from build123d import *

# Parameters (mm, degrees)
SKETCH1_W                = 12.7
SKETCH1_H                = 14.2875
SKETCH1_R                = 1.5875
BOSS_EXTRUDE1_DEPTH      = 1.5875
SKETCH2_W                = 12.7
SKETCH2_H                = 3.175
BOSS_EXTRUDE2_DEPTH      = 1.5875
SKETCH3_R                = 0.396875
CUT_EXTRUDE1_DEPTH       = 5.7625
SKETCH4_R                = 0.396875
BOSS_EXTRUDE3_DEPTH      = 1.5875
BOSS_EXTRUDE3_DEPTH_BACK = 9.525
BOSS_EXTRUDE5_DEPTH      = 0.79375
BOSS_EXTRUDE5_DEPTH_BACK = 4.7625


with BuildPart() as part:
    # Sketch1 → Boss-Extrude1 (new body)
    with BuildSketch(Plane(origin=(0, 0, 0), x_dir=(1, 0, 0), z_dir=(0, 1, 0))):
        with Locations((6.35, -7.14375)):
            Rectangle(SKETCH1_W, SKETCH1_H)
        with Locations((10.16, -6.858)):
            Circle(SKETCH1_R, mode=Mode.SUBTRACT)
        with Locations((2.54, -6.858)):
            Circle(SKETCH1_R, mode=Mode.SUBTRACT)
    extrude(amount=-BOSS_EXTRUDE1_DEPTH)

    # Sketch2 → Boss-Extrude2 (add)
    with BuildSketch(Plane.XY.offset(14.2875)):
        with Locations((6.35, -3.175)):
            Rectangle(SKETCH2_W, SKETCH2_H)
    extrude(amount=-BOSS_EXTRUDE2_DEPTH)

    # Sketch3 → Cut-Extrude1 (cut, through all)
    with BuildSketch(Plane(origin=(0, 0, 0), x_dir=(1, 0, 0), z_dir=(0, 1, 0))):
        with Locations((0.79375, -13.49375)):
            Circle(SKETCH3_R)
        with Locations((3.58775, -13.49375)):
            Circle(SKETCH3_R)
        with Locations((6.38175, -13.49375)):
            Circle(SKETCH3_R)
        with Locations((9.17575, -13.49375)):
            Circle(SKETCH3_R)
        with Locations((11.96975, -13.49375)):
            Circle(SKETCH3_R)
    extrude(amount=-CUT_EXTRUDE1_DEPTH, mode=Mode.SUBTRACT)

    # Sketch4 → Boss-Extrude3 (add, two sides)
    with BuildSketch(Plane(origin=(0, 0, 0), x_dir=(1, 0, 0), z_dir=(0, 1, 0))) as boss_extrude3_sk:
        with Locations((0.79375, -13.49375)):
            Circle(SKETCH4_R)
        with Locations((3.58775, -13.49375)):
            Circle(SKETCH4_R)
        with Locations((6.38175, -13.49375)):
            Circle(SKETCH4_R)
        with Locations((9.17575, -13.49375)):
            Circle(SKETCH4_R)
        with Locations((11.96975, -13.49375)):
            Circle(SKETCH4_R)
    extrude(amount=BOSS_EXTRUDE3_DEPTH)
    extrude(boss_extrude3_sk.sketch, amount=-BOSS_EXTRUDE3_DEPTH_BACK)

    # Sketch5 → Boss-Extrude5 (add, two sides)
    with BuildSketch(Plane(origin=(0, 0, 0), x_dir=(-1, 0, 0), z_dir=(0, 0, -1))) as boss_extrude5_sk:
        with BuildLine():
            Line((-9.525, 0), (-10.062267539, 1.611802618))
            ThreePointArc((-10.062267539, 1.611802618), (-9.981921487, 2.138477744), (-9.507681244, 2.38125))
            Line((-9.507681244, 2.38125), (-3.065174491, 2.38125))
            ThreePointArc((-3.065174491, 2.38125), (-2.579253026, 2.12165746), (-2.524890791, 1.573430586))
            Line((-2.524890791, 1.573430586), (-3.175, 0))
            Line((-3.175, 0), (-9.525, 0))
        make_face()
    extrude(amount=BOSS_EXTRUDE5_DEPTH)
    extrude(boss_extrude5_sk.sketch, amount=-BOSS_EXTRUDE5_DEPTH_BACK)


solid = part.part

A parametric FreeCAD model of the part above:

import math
import FreeCAD as App
import Part
import Sketcher
from FreeCAD import Vector
Q = App.Units.Quantity

doc = App.newDocument("Part")
body = doc.addObject("PartDesign::Body", "Body")

# Sketch on XZ plane
sketch1 = body.newObject("Sketcher::SketchObject", "Sketch")
sketch1.AttachmentSupport = (doc.getObject("XZ_Plane"), [""])
sketch1.MapMode = "FlatFace"
sketch1.addGeometry(Part.LineSegment(Vector(0, 0, 0), Vector(0, 14.3, 0)), False)
sketch1.addGeometry(Part.LineSegment(Vector(0, 14.3, 0), Vector(12.7, 14.3, 0)), False)
sketch1.addGeometry(Part.LineSegment(Vector(12.7, 14.3, 0), Vector(12.7, 0, 0)), False)
sketch1.addGeometry(Part.LineSegment(Vector(12.7, 0, 0), Vector(0, 0, 0)), False)
sketch1.addGeometry(Part.Circle(Vector(2.5, 6.9, 0), Vector(0, 0, 1), 1.6), False)
sketch1.addGeometry(Part.Circle(Vector(10.2, 6.9, 0), Vector(0, 0, 1), 1.6), False)
sketch1.addConstraint(Sketcher.Constraint("Coincident", 0, 2, 1, 1))
sketch1.addConstraint(Sketcher.Constraint("Coincident", 1, 2, 2, 1))
sketch1.addConstraint(Sketcher.Constraint("Coincident", 2, 2, 3, 1))
sketch1.addConstraint(Sketcher.Constraint("Coincident", 3, 2, 0, 1))
sketch1.addConstraint(Sketcher.Constraint("Vertical", 0))
sketch1.addConstraint(Sketcher.Constraint("Horizontal", 1))
sketch1.addConstraint(Sketcher.Constraint("Vertical", 2))
sketch1.addConstraint(Sketcher.Constraint("Horizontal", 3))
sketch1.addConstraint(Sketcher.Constraint("Coincident", 3, 2, -1, 1))
sketch1.addConstraint(Sketcher.Constraint("Equal", 4, 5))
sketch1.addConstraint(Sketcher.Constraint("Horizontal", 4, 3, 5, 3))
sketch1.addConstraint(Sketcher.Constraint("Diameter", 4, Q("0.125 in")))
sketch1.addConstraint(Sketcher.Constraint("DistanceX", 1, 1, 1, 2, Q("0.5 in")))
sketch1.addConstraint(Sketcher.Constraint("DistanceX", -1, 1, 4, 3, Q("0.1 in")))
sketch1.addConstraint(Sketcher.Constraint("DistanceX", -1, 1, 5, 3, Q("0.4 in")))
sketch1.addConstraint(Sketcher.Constraint("DistanceY", 0, 1, 0, 2, Q("0.5625 in")))
sketch1.addConstraint(Sketcher.Constraint("DistanceY", -1, 1, 4, 3, Q("0.27 in")))
pad1 = body.newObject("PartDesign::Pad", "Pad")
pad1.Profile = sketch1
pad1.Length = Q("0.0625 in")

# Sketch on XY plane
sketch2 = body.newObject("Sketcher::SketchObject", "Sketch001")
sketch2.AttachmentSupport = (doc.getObject("XY_Plane"), [""])
sketch2.MapMode = "FlatFace"
sketch2.AttachmentOffset = App.Placement(Vector(0, 0, 0.5625 * 25.4), App.Rotation())
sketch2.addGeometry(Part.LineSegment(Vector(0, -1.6, 0), Vector(0, -4.8, 0)), False)
sketch2.addGeometry(Part.LineSegment(Vector(0, -4.8, 0), Vector(12.7, -4.8, 0)), False)
sketch2.addGeometry(Part.LineSegment(Vector(12.7, -4.8, 0), Vector(12.7, -1.6, 0)), False)
sketch2.addGeometry(Part.LineSegment(Vector(12.7, -1.6, 0), Vector(0, -1.6, 0)), False)
sketch2.addConstraint(Sketcher.Constraint("Coincident", 0, 2, 1, 1))
sketch2.addConstraint(Sketcher.Constraint("Coincident", 1, 2, 2, 1))
sketch2.addConstraint(Sketcher.Constraint("Coincident", 2, 2, 3, 1))
sketch2.addConstraint(Sketcher.Constraint("Coincident", 3, 2, 0, 1))
sketch2.addConstraint(Sketcher.Constraint("Vertical", 0))
sketch2.addConstraint(Sketcher.Constraint("Horizontal", 1))
sketch2.addConstraint(Sketcher.Constraint("Vertical", 2))
sketch2.addConstraint(Sketcher.Constraint("Horizontal", 3))
sketch2.addConstraint(Sketcher.Constraint("PointOnObject", 0, 2, -2))
sketch2.addConstraint(Sketcher.Constraint("DistanceX", 1, 1, 1, 2, Q("0.5 in")))
sketch2.addConstraint(Sketcher.Constraint("DistanceY", 0, 2, 0, 1, Q("0.125 in")))
sketch2.addConstraint(Sketcher.Constraint("DistanceY", 0, 2, -1, 1, Q("0.1875 in")))
pad2 = body.newObject("PartDesign::Pad", "Pad001")
pad2.Profile = sketch2
pad2.Length = Q("0.0625 in")
pad2.Reversed = True

# Sketch on XZ plane
sketch3 = body.newObject("Sketcher::SketchObject", "Sketch002")
sketch3.AttachmentSupport = (doc.getObject("XZ_Plane"), [""])
sketch3.MapMode = "FlatFace"
sketch3.addGeometry(Part.Circle(Vector(0.79, 13.49, 0), Vector(0, 0, 1), 0.4), False)
sketch3.addGeometry(Part.Circle(Vector(3.59, 13.49, 0), Vector(0, 0, 1), 0.4), False)
sketch3.addGeometry(Part.Circle(Vector(6.38, 13.49, 0), Vector(0, 0, 1), 0.4), False)
sketch3.addGeometry(Part.Circle(Vector(9.18, 13.49, 0), Vector(0, 0, 1), 0.4), False)
sketch3.addGeometry(Part.Circle(Vector(11.97, 13.49, 0), Vector(0, 0, 1), 0.4), False)
sketch3.addConstraint(Sketcher.Constraint("Equal", 0, 1))
sketch3.addConstraint(Sketcher.Constraint("Equal", 1, 2))
sketch3.addConstraint(Sketcher.Constraint("Equal", 2, 3))
sketch3.addConstraint(Sketcher.Constraint("Equal", 3, 4))
sketch3.addConstraint(Sketcher.Constraint("Horizontal", 0, 3, 1, 3))
sketch3.addConstraint(Sketcher.Constraint("Horizontal", 1, 3, 2, 3))
sketch3.addConstraint(Sketcher.Constraint("Horizontal", 2, 3, 3, 3))
sketch3.addConstraint(Sketcher.Constraint("Horizontal", 3, 3, 4, 3))
sketch3.addConstraint(Sketcher.Constraint("Diameter", 0, Q("0.03125 in")))
sketch3.addConstraint(Sketcher.Constraint("DistanceX", 0, 3, 1, 3, Q("0.11 in")))
sketch3.addConstraint(Sketcher.Constraint("DistanceX", 1, 3, 2, 3, Q("0.11 in")))
sketch3.addConstraint(Sketcher.Constraint("DistanceX", 2, 3, 3, 3, Q("0.11 in")))
sketch3.addConstraint(Sketcher.Constraint("DistanceX", 3, 3, 4, 3, Q("0.11 in")))
sketch3.addConstraint(Sketcher.Constraint("DistanceX", -1, 1, 0, 3, Q("0.03125 in")))
sketch3.addConstraint(Sketcher.Constraint("DistanceY", -1, 1, 0, 3, Q("0.53125 in")))
pocket1 = body.newObject("PartDesign::Pocket", "Pocket")
pocket1.Profile = sketch3
pocket1.Type = "ThroughAll"
pocket1.Reversed = True

# Sketch on XZ plane
sketch4 = body.newObject("Sketcher::SketchObject", "Sketch003")
sketch4.AttachmentSupport = (doc.getObject("XZ_Plane"), [""])
sketch4.MapMode = "FlatFace"
sketch4.addGeometry(Part.Circle(Vector(0.79, 13.49, 0), Vector(0, 0, 1), 0.4), False)
sketch4.addGeometry(Part.Circle(Vector(3.59, 13.49, 0), Vector(0, 0, 1), 0.4), False)
sketch4.addGeometry(Part.Circle(Vector(6.38, 13.49, 0), Vector(0, 0, 1), 0.4), False)
sketch4.addGeometry(Part.Circle(Vector(9.18, 13.49, 0), Vector(0, 0, 1), 0.4), False)
sketch4.addGeometry(Part.Circle(Vector(11.97, 13.49, 0), Vector(0, 0, 1), 0.4), False)
sketch4.addConstraint(Sketcher.Constraint("Equal", 0, 1))
sketch4.addConstraint(Sketcher.Constraint("Equal", 1, 2))
sketch4.addConstraint(Sketcher.Constraint("Equal", 2, 3))
sketch4.addConstraint(Sketcher.Constraint("Equal", 3, 4))
sketch4.addConstraint(Sketcher.Constraint("Horizontal", 0, 3, 1, 3))
sketch4.addConstraint(Sketcher.Constraint("Horizontal", 1, 3, 2, 3))
sketch4.addConstraint(Sketcher.Constraint("Horizontal", 2, 3, 3, 3))
sketch4.addConstraint(Sketcher.Constraint("Horizontal", 3, 3, 4, 3))
sketch4.addConstraint(Sketcher.Constraint("Diameter", 0, Q("0.03125 in")))
sketch4.addConstraint(Sketcher.Constraint("DistanceX", 0, 3, 1, 3, Q("0.11 in")))
sketch4.addConstraint(Sketcher.Constraint("DistanceX", 1, 3, 2, 3, Q("0.11 in")))
sketch4.addConstraint(Sketcher.Constraint("DistanceX", 2, 3, 3, 3, Q("0.11 in")))
sketch4.addConstraint(Sketcher.Constraint("DistanceX", 3, 3, 4, 3, Q("0.11 in")))
sketch4.addConstraint(Sketcher.Constraint("DistanceX", -1, 1, 0, 3, Q("0.03125 in")))
sketch4.addConstraint(Sketcher.Constraint("DistanceY", -1, 1, 0, 3, Q("0.53125 in")))
pad3 = body.newObject("PartDesign::Pad", "Pad002")
pad3.Profile = sketch4
pad3.Type = "TwoLengths"
pad3.Length = Q("0.0625 in")
pad3.Length2 = Q("0.375 in")
pad3.Reversed = True

# Sketch on XY plane
sketch5 = body.newObject("Sketcher::SketchObject", "Sketch004")
sketch5.AttachmentSupport = (doc.getObject("XY_Plane"), [""])
sketch5.MapMode = "FlatFace"
sketch5.addGeometry(Part.LineSegment(Vector(10.062268, 1.611803, 0), Vector(9.525, 0, 0)), False)
sketch5.addGeometry(Part.LineSegment(Vector(9.525, 0, 0), Vector(3.175, 0, 0)), False)
sketch5.addGeometry(Part.LineSegment(Vector(3.175, 0, 0), Vector(2.524891, 1.573431, 0)), False)
sketch5.addGeometry(Part.ArcOfCircle(Part.Circle(Vector(3.065174, 1.796665, 0), Vector(0, 0, 1), 0.584585), math.radians(90), math.radians(202.449409)), False)
sketch5.addGeometry(Part.LineSegment(Vector(3.065174, 2.38125, 0), Vector(9.507681, 2.38125, 0)), False)
sketch5.addGeometry(Part.ArcOfCircle(Part.Circle(Vector(9.507681, 1.796665, 0), Vector(0, 0, 1), 0.584585), math.radians(-18.434949), math.radians(90)), False)
sketch5.addConstraint(Sketcher.Constraint("Coincident", 0, 2, 1, 1))
sketch5.addConstraint(Sketcher.Constraint("Coincident", 1, 2, 2, 1))
sketch5.addConstraint(Sketcher.Constraint("Coincident", 2, 2, 3, 2))
sketch5.addConstraint(Sketcher.Constraint("Coincident", 3, 1, 4, 1))
sketch5.addConstraint(Sketcher.Constraint("Coincident", 4, 2, 5, 2))
sketch5.addConstraint(Sketcher.Constraint("Coincident", 5, 1, 0, 1))
sketch5.addConstraint(Sketcher.Constraint("Horizontal", 1))
sketch5.addConstraint(Sketcher.Constraint("Horizontal", 4))
sketch5.addConstraint(Sketcher.Constraint("PointOnObject", 0, 2, -1))
sketch5.addConstraint(Sketcher.Constraint("DistanceX", 1, 2, 1, 1, Q("0.25 in")))
sketch5.addConstraint(Sketcher.Constraint("DistanceX", -1, 1, 0, 2, Q("0.375 in")))
sketch5.addConstraint(Sketcher.Constraint("DistanceY", -1, 1, 3, 1, Q("0.09375 in")))
sketch5.addConstraint(Sketcher.Constraint("Radius", 3, Q("0.584585 mm")))
sketch5.addConstraint(Sketcher.Constraint("Radius", 5, Q("0.584585 mm")))
sketch5.addConstraint(Sketcher.Constraint("Distance", 0, Q("1.698989 mm")))
sketch5.addConstraint(Sketcher.Constraint("DistanceX", 4, 1, 4, 2, Q("6.442507 mm")))
sketch5.addConstraint(Sketcher.Constraint("DistanceX", -1, 1, 5, 3, Q("9.507681 mm")))
sketch5.addConstraint(Sketcher.Constraint("DistanceX", -1, 1, 2, 2, Q("2.524891 mm")))
sketch5.addConstraint(Sketcher.Constraint("DistanceY", -1, 1, 2, 2, Q("1.573431 mm")))
sketch5.addConstraint(Sketcher.Constraint("DistanceX", -1, 1, 4, 2, Q("9.507681 mm")))
pad4 = body.newObject("PartDesign::Pad", "Pad003")
pad4.Profile = sketch5
pad4.Type = "TwoLengths"
pad4.Length = Q("0.03125 in")
pad4.Length2 = Q("0.1875 in")
pad4.Reversed = True

doc.recompute()
